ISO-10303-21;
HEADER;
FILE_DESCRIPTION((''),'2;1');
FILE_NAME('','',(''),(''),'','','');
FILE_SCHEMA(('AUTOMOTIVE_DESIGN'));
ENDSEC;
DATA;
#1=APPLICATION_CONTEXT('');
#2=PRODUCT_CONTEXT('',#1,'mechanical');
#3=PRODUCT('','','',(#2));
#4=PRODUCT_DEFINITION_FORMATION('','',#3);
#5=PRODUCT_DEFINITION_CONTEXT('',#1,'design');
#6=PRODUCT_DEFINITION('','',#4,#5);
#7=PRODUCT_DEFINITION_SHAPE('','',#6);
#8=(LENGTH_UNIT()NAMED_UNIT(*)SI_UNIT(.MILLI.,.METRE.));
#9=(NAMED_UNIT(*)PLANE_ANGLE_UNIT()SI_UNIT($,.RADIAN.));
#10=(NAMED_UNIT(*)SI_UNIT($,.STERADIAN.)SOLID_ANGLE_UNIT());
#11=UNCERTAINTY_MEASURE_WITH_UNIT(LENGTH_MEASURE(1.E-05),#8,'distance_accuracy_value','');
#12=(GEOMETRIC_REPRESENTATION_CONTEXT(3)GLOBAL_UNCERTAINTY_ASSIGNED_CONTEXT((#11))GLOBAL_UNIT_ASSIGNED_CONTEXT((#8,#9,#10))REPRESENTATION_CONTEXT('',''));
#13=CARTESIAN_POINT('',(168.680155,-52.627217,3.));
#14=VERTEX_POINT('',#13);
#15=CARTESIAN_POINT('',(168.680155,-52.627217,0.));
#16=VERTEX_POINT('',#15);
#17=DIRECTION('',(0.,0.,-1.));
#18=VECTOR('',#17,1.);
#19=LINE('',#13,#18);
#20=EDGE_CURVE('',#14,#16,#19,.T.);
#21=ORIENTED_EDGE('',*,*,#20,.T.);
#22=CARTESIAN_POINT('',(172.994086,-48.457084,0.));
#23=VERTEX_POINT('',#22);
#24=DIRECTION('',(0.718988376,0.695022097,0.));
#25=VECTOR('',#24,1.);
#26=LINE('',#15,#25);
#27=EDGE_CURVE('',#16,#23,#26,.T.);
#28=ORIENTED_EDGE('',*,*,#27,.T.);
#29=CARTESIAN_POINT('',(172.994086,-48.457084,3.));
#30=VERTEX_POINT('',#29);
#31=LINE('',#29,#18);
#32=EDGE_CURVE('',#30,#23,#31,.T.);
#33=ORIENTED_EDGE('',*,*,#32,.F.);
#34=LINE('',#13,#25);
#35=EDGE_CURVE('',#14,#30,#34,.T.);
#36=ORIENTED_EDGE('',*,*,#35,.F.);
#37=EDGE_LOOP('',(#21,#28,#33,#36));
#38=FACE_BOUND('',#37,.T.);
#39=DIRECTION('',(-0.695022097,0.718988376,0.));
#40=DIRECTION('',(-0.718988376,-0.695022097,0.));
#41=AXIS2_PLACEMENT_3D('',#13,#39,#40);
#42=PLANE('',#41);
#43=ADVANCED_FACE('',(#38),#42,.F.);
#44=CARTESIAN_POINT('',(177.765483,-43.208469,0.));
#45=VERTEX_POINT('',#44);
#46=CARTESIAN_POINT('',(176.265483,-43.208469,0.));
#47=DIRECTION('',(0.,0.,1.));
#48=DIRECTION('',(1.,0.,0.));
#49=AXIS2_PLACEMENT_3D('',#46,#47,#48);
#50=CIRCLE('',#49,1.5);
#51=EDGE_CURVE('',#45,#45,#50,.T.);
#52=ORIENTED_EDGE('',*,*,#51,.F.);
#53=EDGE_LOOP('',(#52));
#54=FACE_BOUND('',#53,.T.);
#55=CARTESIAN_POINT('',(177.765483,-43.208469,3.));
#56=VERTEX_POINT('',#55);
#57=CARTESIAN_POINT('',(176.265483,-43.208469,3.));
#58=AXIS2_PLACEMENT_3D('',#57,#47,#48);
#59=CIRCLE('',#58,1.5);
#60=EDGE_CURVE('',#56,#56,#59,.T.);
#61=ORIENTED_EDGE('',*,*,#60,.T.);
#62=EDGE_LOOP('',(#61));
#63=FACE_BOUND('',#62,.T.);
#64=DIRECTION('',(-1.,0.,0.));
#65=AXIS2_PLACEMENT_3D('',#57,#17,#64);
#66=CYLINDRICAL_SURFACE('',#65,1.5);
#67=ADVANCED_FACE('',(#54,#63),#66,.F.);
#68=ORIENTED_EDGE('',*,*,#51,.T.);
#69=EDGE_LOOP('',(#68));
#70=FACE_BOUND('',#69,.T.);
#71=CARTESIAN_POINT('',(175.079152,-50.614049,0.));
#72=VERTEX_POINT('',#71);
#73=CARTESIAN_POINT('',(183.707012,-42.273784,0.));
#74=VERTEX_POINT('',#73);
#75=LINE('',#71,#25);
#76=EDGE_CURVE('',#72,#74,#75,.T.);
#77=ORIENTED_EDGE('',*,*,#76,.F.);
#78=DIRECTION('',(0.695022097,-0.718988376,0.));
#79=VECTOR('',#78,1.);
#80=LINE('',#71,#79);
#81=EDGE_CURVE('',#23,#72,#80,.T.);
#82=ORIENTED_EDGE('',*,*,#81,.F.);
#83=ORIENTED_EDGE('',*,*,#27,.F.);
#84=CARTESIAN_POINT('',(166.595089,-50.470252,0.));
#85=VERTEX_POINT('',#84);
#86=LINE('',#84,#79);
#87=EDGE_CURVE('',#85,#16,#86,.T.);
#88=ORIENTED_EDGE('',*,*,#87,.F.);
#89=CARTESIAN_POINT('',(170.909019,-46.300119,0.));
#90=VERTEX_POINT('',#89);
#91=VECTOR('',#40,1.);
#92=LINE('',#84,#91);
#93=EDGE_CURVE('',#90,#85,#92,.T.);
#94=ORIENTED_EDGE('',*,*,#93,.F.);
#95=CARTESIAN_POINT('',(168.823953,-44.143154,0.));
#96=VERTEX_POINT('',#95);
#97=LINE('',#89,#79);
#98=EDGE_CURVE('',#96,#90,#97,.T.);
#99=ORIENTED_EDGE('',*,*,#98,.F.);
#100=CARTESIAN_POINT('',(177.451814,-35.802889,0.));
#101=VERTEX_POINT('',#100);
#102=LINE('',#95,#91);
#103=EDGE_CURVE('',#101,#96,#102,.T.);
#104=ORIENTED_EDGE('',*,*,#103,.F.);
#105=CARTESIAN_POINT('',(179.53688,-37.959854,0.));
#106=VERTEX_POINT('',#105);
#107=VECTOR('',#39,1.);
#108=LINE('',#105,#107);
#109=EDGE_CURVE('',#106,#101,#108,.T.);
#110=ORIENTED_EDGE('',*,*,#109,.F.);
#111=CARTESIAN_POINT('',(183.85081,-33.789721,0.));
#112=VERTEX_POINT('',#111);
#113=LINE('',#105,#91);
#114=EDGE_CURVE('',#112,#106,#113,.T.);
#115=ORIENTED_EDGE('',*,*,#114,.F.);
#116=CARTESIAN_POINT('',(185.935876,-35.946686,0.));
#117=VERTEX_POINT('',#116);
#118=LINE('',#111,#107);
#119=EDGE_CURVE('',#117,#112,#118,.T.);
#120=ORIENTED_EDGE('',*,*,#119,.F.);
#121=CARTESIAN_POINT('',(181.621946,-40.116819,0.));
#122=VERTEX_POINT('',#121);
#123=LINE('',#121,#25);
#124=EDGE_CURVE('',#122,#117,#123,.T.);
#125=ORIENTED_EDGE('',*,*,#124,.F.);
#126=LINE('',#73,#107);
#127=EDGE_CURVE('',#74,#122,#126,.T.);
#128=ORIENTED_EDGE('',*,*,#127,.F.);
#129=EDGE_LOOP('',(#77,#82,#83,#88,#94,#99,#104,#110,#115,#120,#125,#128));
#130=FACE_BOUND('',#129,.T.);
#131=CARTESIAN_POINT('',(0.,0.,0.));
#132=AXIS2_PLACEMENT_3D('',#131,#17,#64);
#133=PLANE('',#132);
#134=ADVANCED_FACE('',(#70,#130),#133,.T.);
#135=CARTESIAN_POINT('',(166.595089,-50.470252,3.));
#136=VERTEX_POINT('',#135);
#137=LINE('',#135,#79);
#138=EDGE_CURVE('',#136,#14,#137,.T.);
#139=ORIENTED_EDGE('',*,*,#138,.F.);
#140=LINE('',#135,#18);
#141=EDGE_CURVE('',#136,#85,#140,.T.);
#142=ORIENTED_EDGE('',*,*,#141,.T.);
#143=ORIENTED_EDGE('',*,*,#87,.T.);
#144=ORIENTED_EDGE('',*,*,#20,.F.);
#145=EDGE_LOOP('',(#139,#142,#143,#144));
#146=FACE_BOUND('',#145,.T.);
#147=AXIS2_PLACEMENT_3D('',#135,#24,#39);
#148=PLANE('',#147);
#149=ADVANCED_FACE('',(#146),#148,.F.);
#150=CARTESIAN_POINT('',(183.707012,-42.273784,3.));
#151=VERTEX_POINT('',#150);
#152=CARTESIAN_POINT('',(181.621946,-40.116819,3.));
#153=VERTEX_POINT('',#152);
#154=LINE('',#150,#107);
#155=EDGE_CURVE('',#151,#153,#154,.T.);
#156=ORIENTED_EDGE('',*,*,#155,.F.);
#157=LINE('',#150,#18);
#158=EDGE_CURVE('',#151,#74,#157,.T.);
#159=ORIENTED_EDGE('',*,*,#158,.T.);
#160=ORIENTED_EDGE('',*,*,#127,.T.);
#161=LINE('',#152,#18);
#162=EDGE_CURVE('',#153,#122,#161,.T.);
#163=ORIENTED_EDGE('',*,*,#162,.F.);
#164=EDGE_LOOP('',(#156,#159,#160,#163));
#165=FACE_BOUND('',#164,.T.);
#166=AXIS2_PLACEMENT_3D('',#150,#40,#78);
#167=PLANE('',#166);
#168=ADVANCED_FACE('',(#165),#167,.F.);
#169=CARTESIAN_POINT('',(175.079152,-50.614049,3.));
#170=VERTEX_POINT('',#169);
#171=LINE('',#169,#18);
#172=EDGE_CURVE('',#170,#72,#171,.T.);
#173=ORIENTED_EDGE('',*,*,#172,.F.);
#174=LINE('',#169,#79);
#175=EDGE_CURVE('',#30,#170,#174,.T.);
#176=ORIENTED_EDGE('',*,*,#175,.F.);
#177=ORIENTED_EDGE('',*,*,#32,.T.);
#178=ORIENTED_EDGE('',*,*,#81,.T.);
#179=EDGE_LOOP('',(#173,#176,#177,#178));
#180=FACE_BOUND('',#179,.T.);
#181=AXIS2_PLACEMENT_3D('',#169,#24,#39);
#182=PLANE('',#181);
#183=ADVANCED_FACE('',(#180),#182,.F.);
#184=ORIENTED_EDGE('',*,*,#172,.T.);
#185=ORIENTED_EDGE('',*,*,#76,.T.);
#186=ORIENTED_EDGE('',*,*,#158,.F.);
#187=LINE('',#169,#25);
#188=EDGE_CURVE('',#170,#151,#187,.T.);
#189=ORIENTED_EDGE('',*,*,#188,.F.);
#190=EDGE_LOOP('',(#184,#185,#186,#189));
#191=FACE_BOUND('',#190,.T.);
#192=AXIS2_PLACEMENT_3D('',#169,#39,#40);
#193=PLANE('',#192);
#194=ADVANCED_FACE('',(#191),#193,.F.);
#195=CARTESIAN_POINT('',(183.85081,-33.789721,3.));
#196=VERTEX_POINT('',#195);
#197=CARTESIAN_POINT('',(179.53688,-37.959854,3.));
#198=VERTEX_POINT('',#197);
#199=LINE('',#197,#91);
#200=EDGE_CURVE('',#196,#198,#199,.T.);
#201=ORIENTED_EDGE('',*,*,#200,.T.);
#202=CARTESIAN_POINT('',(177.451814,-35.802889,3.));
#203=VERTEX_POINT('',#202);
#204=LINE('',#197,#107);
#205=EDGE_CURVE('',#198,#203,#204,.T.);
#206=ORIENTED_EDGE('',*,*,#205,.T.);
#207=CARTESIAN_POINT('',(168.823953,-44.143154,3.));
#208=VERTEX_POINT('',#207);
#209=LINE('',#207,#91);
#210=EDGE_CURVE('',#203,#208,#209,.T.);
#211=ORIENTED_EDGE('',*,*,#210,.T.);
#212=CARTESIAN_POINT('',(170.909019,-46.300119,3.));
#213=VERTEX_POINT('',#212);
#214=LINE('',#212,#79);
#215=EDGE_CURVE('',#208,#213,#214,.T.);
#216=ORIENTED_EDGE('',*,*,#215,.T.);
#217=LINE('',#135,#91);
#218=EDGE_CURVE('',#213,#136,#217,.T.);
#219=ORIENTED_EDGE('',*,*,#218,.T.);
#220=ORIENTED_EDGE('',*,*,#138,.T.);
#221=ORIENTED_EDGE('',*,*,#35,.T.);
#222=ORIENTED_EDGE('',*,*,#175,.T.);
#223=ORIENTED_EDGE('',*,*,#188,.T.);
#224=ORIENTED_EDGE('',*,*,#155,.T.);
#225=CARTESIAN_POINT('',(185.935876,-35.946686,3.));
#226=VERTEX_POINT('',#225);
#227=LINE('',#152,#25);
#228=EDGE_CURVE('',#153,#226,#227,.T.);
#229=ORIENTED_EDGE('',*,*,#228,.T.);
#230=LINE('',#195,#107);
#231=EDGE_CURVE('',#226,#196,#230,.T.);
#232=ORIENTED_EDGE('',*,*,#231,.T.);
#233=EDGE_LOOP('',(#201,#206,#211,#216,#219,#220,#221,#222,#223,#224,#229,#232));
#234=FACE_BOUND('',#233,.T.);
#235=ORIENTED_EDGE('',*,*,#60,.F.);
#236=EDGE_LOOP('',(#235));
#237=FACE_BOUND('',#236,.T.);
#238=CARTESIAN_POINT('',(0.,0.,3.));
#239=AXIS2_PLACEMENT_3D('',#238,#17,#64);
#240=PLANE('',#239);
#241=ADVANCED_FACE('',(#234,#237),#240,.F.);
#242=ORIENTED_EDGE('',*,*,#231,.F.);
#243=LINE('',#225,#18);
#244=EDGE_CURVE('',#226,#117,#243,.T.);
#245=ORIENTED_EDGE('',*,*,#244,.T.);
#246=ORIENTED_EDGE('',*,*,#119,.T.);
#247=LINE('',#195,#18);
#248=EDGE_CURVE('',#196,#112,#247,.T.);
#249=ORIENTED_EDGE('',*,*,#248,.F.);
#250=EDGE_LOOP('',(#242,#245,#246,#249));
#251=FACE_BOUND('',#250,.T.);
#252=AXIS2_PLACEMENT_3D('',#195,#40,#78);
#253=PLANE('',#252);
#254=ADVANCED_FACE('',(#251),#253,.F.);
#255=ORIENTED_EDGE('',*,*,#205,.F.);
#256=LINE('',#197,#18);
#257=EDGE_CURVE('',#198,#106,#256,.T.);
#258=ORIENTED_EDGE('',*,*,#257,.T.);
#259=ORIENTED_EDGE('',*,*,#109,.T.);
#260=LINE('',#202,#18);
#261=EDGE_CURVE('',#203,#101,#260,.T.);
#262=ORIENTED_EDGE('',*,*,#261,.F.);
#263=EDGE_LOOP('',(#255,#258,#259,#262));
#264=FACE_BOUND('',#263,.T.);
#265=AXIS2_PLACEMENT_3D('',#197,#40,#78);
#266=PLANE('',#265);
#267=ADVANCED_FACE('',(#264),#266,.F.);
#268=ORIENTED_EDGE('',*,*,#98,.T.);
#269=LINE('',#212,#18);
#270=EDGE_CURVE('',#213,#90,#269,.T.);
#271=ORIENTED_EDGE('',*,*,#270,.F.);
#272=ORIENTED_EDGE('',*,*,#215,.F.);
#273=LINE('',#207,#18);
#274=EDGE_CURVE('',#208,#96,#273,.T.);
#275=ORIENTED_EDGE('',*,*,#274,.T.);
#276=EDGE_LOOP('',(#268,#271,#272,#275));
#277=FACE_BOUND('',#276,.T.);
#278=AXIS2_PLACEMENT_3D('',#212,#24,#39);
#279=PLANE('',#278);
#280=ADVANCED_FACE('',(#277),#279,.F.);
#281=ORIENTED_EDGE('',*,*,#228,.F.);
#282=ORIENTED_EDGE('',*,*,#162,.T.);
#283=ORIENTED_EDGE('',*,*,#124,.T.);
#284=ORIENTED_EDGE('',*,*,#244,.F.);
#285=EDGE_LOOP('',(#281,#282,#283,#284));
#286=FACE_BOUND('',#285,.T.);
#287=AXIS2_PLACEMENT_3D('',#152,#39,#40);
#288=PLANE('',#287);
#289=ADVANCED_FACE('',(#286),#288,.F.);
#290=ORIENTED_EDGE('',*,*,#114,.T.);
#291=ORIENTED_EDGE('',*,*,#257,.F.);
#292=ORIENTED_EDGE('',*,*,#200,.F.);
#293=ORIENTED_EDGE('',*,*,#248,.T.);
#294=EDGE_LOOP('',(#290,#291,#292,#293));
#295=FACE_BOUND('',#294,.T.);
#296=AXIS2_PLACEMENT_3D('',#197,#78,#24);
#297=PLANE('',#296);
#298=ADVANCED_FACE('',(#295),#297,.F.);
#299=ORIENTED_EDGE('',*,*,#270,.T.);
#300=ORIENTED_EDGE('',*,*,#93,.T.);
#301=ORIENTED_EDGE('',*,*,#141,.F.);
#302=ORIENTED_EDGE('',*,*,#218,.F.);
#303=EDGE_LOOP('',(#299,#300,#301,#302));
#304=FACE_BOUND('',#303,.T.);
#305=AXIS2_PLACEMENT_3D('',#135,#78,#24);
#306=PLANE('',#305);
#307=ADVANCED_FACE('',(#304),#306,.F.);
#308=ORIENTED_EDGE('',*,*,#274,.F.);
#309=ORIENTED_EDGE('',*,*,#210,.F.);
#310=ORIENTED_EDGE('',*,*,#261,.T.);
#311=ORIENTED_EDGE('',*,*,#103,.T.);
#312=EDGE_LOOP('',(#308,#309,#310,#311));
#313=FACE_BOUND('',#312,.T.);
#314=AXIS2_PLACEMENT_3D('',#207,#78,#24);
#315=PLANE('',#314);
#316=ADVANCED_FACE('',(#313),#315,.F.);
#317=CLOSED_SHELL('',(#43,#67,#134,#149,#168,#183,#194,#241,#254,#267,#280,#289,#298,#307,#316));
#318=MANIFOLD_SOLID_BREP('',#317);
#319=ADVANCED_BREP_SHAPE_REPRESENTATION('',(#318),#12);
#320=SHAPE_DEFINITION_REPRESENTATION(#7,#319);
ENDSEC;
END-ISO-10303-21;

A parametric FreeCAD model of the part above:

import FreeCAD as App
import Part
import Sketcher


def add_polygon(sketch, points):
    """Adds a closed chain of lines whose ends are joined by coincident constraints."""
    first, n = sketch.GeometryCount, len(points)
    for a, b in zip(points, points[1:] + points[:1]):
        sketch.addGeometry(Part.LineSegment(App.Vector(*a, 0), App.Vector(*b, 0)), False)
    for i in range(n):
        sketch.addConstraint(Sketcher.Constraint("Coincident", first + i, 2, first + (i + 1) % n, 1))

doc = App.newDocument("Part")
body = doc.addObject("PartDesign::Body", "Body")

sketch1 = doc.addObject("Sketcher::SketchObject", "Sketch")
body.addObject(sketch1)
sketch1.AttachmentSupport = (doc.XY_Plane, [""])
sketch1.MapMode = "FlatFace"
add_polygon(sketch1, [(175.1, -50.6), (183.7, -42.3), (181.6, -40.1), (185.9, -35.9), (183.9, -33.8), (179.5, -38), (177.5, -35.8), (168.8, -44.1), (170.9, -46.3), (166.6, -50.5), (168.7, -52.6), (173, -48.5)])
sketch1.addGeometry(Part.Circle(App.Vector(176.3, -43.2, 0), App.Vector(0, 0, 1), 1.5), False)
sketch1.addConstraint([
    Sketcher.Constraint("Perpendicular", 0, 1),
    Sketcher.Constraint("Perpendicular", 1, 2),
    Sketcher.Constraint("Perpendicular", 2, 3),
    Sketcher.Constraint("Perpendicular", 3, 4),
    Sketcher.Constraint("Perpendicular", 4, 5),
    Sketcher.Constraint("Perpendicular", 5, 6),
    Sketcher.Constraint("Perpendicular", 6, 7),
    Sketcher.Constraint("Perpendicular", 7, 8),
    Sketcher.Constraint("Perpendicular", 8, 9),
    Sketcher.Constraint("Perpendicular", 9, 10),
    Sketcher.Constraint("Perpendicular", 10, 11),
    Sketcher.Constraint("Equal", 1, 3),
    Sketcher.Constraint("Equal", 2, 4),
    Sketcher.Constraint("Equal", 3, 5),
    Sketcher.Constraint("Equal", 0, 6),
    Sketcher.Constraint("Equal", 5, 7),
    Sketcher.Constraint("Equal", 4, 8),
    Sketcher.Constraint("Equal", 7, 9),
    Sketcher.Constraint("Diameter", 12, 3.0),
    Sketcher.Constraint("Distance", 0, 12.0),
    Sketcher.Constraint("Distance", 1, 3.0),
    Sketcher.Constraint("Distance", 2, 6.0),
    Sketcher.Constraint("DistanceY", 6, 2, 4, 2, 6.1833),
    Sketcher.Constraint("DistanceY", 12, 3, -1, 1, 43.208469),
    Sketcher.Constraint("DistanceY", 1, 2, -1, 1, 40.116819),
    Sketcher.Constraint("DistanceX", -1, 1, 3, 2, 183.85081),
    Sketcher.Constraint("DistanceX", 12, 3, 0, 2, 7.44153),
])
pad1 = doc.addObject("PartDesign::Pad", "Pad")
body.addObject(pad1)
pad1.Profile = sketch1
pad1.Length = 3

doc.recompute()
